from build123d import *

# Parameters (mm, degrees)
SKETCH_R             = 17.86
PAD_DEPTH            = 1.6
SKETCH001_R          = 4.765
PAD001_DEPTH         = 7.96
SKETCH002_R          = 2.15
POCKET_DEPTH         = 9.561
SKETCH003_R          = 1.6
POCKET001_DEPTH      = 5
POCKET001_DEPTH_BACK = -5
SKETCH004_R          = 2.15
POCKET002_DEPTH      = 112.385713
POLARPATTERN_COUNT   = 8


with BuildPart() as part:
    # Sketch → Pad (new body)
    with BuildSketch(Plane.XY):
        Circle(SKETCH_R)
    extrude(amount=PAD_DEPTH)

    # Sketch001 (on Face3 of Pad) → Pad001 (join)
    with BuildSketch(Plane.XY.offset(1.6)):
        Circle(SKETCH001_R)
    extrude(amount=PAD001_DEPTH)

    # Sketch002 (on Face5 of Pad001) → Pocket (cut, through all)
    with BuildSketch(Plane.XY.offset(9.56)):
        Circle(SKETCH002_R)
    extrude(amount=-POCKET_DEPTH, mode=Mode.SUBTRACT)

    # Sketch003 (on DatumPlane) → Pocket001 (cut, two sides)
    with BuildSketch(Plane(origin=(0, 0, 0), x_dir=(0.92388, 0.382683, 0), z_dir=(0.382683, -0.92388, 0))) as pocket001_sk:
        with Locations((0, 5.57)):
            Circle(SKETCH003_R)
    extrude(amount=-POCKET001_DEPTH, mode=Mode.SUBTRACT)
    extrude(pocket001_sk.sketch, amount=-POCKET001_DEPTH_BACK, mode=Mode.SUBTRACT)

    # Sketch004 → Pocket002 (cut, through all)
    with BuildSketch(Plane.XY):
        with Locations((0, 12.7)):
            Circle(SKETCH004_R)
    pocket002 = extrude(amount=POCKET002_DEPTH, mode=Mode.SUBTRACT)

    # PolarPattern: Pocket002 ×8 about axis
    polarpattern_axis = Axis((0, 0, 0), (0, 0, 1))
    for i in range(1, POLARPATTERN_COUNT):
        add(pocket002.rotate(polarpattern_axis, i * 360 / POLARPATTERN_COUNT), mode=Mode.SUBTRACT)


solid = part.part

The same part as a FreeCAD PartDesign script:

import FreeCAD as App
import Part
import Sketcher
from FreeCAD import Vector

doc = App.newDocument("Part")
body = doc.addObject("PartDesign::Body", "Body")

sketch1 = body.newObject("Sketcher::SketchObject", "Sketch")
sketch1.AttachmentSupport = (doc.getObject("XY_Plane"), [""])
sketch1.MapMode = "FlatFace"
sketch1.addGeometry(Part.Circle(Vector(0, 0, 0), Vector(0, 0, 1), 17.86), False)
sketch1.addConstraint(Sketcher.Constraint("Coincident", 0, 3, -1, 1))
sketch1.addConstraint(Sketcher.Constraint("Diameter", 0, 35.72))
pad1 = body.newObject("PartDesign::Pad", "Pad")
pad1.Profile = sketch1
pad1.Length = 1.6

sketch2 = body.newObject("Sketcher::SketchObject", "Sketch001")
sketch2.AttachmentSupport = (doc.getObject("XY_Plane"), [""])
sketch2.MapMode = "FlatFace"
sketch2.AttachmentOffset = App.Placement(Vector(0, 0, 1.6), App.Rotation())
sketch2.addGeometry(Part.Circle(Vector(0, 0, 0), Vector(0, 0, 1), 4.765), False)
sketch2.addConstraint(Sketcher.Constraint("Coincident", 0, 3, -1, 1))
sketch2.addConstraint(Sketcher.Constraint("Diameter", 0, 9.53))
pad2 = body.newObject("PartDesign::Pad", "Pad001")
pad2.Profile = sketch2
pad2.Length = 7.96

sketch3 = body.newObject("Sketcher::SketchObject", "Sketch002")
sketch3.AttachmentSupport = (doc.getObject("XY_Plane"), [""])
sketch3.MapMode = "FlatFace"
sketch3.AttachmentOffset = App.Placement(Vector(0, 0, 9.56), App.Rotation())
sketch3.addGeometry(Part.Circle(Vector(0, 0, 0), Vector(0, 0, 1), 2.15), False)
sketch3.addConstraint(Sketcher.Constraint("Coincident", 0, 3, -1, 1))
sketch3.addConstraint(Sketcher.Constraint("Diameter", 0, 4.3))
pocket1 = body.newObject("PartDesign::Pocket", "Pocket")
pocket1.Profile = sketch3
pocket1.Type = "ThroughAll"

sketch4 = body.newObject("Sketcher::SketchObject", "Sketch003")
sketch4.Placement = App.Placement(Vector(0, 0, 0), App.Rotation(Vector(0.923879754, 0.382682898, 0), Vector(0, 0, 1), Vector(0.382682898, -0.923879754, 0), "ZXY"))
sketch4.addGeometry(Part.Circle(Vector(0, 5.57, 0), Vector(0, 0, 1), 1.6), False)
sketch4.addConstraint(Sketcher.Constraint("PointOnObject", 0, 3, -2))
sketch4.addConstraint(Sketcher.Constraint("Diameter", 0, 3.2))
sketch4.addConstraint(Sketcher.Constraint("DistanceY", -1, 1, 0, 3, 5.57))
pocket2 = body.newObject("PartDesign::Pocket", "Pocket001")
pocket2.Profile = sketch4
pocket2.Type = "ThroughAll"
pocket2.Midplane = True

sketch5 = body.newObject("Sketcher::SketchObject", "Sketch004")
sketch5.AttachmentSupport = (doc.getObject("XY_Plane"), [""])
sketch5.MapMode = "FlatFace"
sketch5.addGeometry(Part.Circle(Vector(0, 12.7, 0), Vector(0, 0, 1), 2.15), False)
sketch5.addConstraint(Sketcher.Constraint("PointOnObject", 0, 3, -2))
sketch5.addConstraint(Sketcher.Constraint("Diameter", 0, 4.3))
sketch5.addConstraint(Sketcher.Constraint("DistanceY", -1, 1, 0, 3, 12.7))
pocket3 = body.newObject("PartDesign::Pocket", "Pocket002")
pocket3.Profile = sketch5
pocket3.Type = "ThroughAll"
pocket3.Reversed = True
doc.recompute()

polarpattern = body.newObject("PartDesign::PolarPattern", "PolarPattern")
polarpattern.Originals = [pocket3]
polarpattern.Axis = (doc.getObject("Z_Axis"), [""])
polarpattern.Angle = 360
polarpattern.Occurrences = 8
body.Tip = polarpattern

doc.recompute()
